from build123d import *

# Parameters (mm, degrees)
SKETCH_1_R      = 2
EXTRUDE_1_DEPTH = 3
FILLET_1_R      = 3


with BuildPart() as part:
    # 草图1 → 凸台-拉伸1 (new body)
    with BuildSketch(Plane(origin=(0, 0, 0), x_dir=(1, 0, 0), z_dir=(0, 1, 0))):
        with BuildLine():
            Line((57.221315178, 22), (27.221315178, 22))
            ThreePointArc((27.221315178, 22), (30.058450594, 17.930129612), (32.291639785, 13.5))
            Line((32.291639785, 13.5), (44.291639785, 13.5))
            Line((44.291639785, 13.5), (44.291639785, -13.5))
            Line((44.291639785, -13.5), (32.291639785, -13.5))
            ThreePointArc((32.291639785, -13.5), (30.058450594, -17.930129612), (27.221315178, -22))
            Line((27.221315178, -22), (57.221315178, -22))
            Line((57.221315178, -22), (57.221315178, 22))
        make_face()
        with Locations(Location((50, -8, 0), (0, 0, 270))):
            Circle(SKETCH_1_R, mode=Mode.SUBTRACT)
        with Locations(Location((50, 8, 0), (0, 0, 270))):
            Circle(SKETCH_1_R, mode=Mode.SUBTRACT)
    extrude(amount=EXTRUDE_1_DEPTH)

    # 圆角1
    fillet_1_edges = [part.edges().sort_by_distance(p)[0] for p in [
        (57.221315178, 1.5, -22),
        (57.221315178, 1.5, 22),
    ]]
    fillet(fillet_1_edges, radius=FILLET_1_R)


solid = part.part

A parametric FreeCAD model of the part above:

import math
import FreeCAD as App
import Part
import Sketcher

V = App.Vector


def edges_at(feature, points):
    """Names of the edges that pass closest to the given points."""
    edges = feature.Shape.Edges
    near = lambda p: min(range(len(edges)), key=lambda i: edges[i].distToShape(Part.Vertex(*p))[0])
    return sorted({f"Edge{near(p) + 1}" for p in points})

doc = App.newDocument("Part")
body = doc.addObject("PartDesign::Body", "Body")

# Sketch on XZ plane
sketch1 = body.newObject("Sketcher::SketchObject", "Sketch")
sketch1.AttachmentSupport = (doc.getObject("XZ_Plane"), [""])
sketch1.MapMode = "FlatFace"
sketch1.addGeometry(Part.LineSegment(V(57.2, -22, 0), V(27.2, -22, 0)), False)
sketch1.addGeometry(Part.ArcOfCircle(Part.Circle(V(0, 0, 0), V(0, 0, 1), 35), math.radians(-38.94), math.radians(-22.69)), False)
sketch1.addGeometry(Part.LineSegment(V(32.3, -13.5, 0), V(44.3, -13.5, 0)), False)
sketch1.addGeometry(Part.LineSegment(V(44.3, -13.5, 0), V(44.3, 13.5, 0)), False)
sketch1.addGeometry(Part.LineSegment(V(44.3, 13.5, 0), V(32.3, 13.5, 0)), False)
sketch1.addGeometry(Part.ArcOfCircle(Part.Circle(V(0, 0, 0), V(0, 0, 1), 35), math.radians(22.69), math.radians(38.94)), False)
sketch1.addGeometry(Part.LineSegment(V(27.2, 22, 0), V(57.2, 22, 0)), False)
sketch1.addGeometry(Part.LineSegment(V(57.2, 22, 0), V(57.2, -22, 0)), False)
sketch1.addGeometry(Part.Circle(V(50, 8, 0), V(0, 0, 1), 2), False)
sketch1.addGeometry(Part.Circle(V(50, -8, 0), V(0, 0, 1), 2), False)
sketch1.addConstraint(Sketcher.Constraint("Coincident", 0, 2, 1, 1))
sketch1.addConstraint(Sketcher.Constraint("Coincident", 1, 2, 2, 1))
sketch1.addConstraint(Sketcher.Constraint("Coincident", 2, 2, 3, 1))
sketch1.addConstraint(Sketcher.Constraint("Coincident", 3, 2, 4, 1))
sketch1.addConstraint(Sketcher.Constraint("Coincident", 4, 2, 5, 1))
sketch1.addConstraint(Sketcher.Constraint("Coincident", 5, 2, 6, 1))
sketch1.addConstraint(Sketcher.Constraint("Coincident", 6, 2, 7, 1))
sketch1.addConstraint(Sketcher.Constraint("Coincident", 7, 2, 0, 1))
sketch1.addConstraint(Sketcher.Constraint("Horizontal", 0))
sketch1.addConstraint(Sketcher.Constraint("Horizontal", 2))
sketch1.addConstraint(Sketcher.Constraint("Vertical", 3))
sketch1.addConstraint(Sketcher.Constraint("Horizontal", 4))
sketch1.addConstraint(Sketcher.Constraint("Horizontal", 6))
sketch1.addConstraint(Sketcher.Constraint("Vertical", 7))
sketch1.addConstraint(Sketcher.Constraint("Coincident", 1, 3, -1, 1))
sketch1.addConstraint(Sketcher.Constraint("Coincident", 5, 3, -1, 1))
sketch1.addConstraint(Sketcher.Constraint("Equal", 1, 5))
sketch1.addConstraint(Sketcher.Constraint("Equal", 8, 9))
sketch1.addConstraint(Sketcher.Constraint("Symmetric", 8, 3, 9, 3, -1))
sketch1.addConstraint(Sketcher.Constraint("Vertical", 1, 2, 4, 2))
sketch1.addConstraint(Sketcher.Constraint("Vertical", 0, 2, 5, 2))
sketch1.addConstraint(Sketcher.Constraint("Diameter", 8, 4.0))
sketch1.addConstraint(Sketcher.Constraint("Radius", 1, 35.0))
sketch1.addConstraint(Sketcher.Constraint("DistanceX", 0, 2, 0, 1, 30.0))
sketch1.addConstraint(Sketcher.Constraint("DistanceX", 2, 1, 2, 2, 12.0))
sketch1.addConstraint(Sketcher.Constraint("DistanceY", 3, 1, 3, 2, 27.0))
sketch1.addConstraint(Sketcher.Constraint("DistanceY", 7, 2, 7, 1, 44.0))
sketch1.addConstraint(Sketcher.Constraint("DistanceX", -1, 1, 8, 3, 50.0))
sketch1.addConstraint(Sketcher.Constraint("DistanceY", -1, 1, 8, 3, 8.0))
pad1 = body.newObject("PartDesign::Pad", "Pad")
pad1.Profile = sketch1
pad1.Length = 3
pad1.Reversed = True
doc.recompute()

fillet = body.newObject("PartDesign::Fillet", "Fillet")
fillet.Base = (pad1, edges_at(pad1, [(57.221, 1.5, -22), (57.221, 1.5, 22)]))
fillet.Radius = 3

doc.recompute()
